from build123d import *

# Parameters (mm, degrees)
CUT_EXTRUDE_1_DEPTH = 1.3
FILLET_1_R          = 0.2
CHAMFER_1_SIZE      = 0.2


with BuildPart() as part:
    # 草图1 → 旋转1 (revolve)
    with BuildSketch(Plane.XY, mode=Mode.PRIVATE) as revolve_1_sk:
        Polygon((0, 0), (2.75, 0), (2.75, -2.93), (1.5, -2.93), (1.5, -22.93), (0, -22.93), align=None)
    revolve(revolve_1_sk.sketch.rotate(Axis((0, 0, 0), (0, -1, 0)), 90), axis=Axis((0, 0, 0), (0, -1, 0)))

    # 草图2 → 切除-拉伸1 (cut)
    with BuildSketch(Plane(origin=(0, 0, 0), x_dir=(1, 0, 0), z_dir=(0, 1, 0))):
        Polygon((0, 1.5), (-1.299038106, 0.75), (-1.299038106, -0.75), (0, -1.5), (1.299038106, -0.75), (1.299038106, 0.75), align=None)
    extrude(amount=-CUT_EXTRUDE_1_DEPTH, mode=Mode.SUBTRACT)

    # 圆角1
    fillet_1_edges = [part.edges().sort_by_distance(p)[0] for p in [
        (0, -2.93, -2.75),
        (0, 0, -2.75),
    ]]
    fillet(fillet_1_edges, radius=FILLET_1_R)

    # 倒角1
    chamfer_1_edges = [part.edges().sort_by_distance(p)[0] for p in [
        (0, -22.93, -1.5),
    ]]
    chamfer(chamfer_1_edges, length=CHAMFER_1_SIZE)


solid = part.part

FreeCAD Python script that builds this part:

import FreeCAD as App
import Part
import Sketcher
from FreeCAD import Vector
Q = App.Units.Quantity


def edges_at(feature, points):
    """Names of the edges that pass closest to the given points."""
    edges = feature.Shape.Edges
    near = lambda p: min(range(len(edges)), key=lambda i: edges[i].distToShape(Part.Vertex(*p))[0])
    return sorted({f"Edge{near(p) + 1}" for p in points})


def add_polygon(sketch, points):
    """Adds a closed chain of lines whose ends are joined by coincident constraints."""
    first, n = sketch.GeometryCount, len(points)
    for a, b in zip(points, points[1:] + points[:1]):
        sketch.addGeometry(Part.LineSegment(App.Vector(*a, 0), App.Vector(*b, 0)), False)
    for i in range(n):
        sketch.addConstraint(Sketcher.Constraint("Coincident", first + i, 2, first + (i + 1) % n, 1))

doc = App.newDocument("Part")
body = doc.addObject("PartDesign::Body", "Body")

# Sketch on XY plane
sketch1 = body.newObject("Sketcher::SketchObject", "Sketch")
sketch1.AttachmentSupport = (doc.getObject("XY_Plane"), [""])
sketch1.MapMode = "FlatFace"
add_polygon(sketch1, [(2.8, 0), (0, 0), (0, -22.9), (1.5, -22.9), (1.5, -2.9), (2.8, -2.9)])  # lines 0-5
sketch1.addConstraint(Sketcher.Constraint("Horizontal", 0))
sketch1.addConstraint(Sketcher.Constraint("Vertical", 1))
sketch1.addConstraint(Sketcher.Constraint("Horizontal", 2))
sketch1.addConstraint(Sketcher.Constraint("Vertical", 3))
sketch1.addConstraint(Sketcher.Constraint("Horizontal", 4))
sketch1.addConstraint(Sketcher.Constraint("Vertical", 5))
sketch1.addConstraint(Sketcher.Constraint("Coincident", 0, 2, -1, 1))
sketch1.addConstraint(Sketcher.Constraint("DistanceY", 3, 1, 3, 2, 20.0))
sketch1.addConstraint(Sketcher.Constraint("DistanceX", 2, 1, 2, 2, 1.5))
sketch1.addConstraint(Sketcher.Constraint("DistanceX", 0, 2, 0, 1, 2.75))
sketch1.addConstraint(Sketcher.Constraint("DistanceY", 1, 2, 1, 1, 22.93))
revolution = body.newObject("PartDesign::Revolution", "Revolution")
revolution.Profile = sketch1
revolution.ReferenceAxis = (sketch1, ["V_Axis"])
revolution.Angle = 360

# Sketch on XZ plane
sketch2 = body.newObject("Sketcher::SketchObject", "Sketch001")
sketch2.AttachmentSupport = (doc.getObject("XZ_Plane"), [""])
sketch2.MapMode = "FlatFace"
add_polygon(sketch2, [(0, -1.5), (-1.3, -0.8), (-1.3, 0.8), (0, 1.5), (1.3, 0.8), (1.3, -0.8)])  # lines 0-5
sketch2.addConstraint(Sketcher.Constraint("Vertical", 1))
sketch2.addConstraint(Sketcher.Constraint("Vertical", 4))
sketch2.addConstraint(Sketcher.Constraint("Symmetric", 0, 2, 3, 2, -1, 1))
sketch2.addConstraint(Sketcher.Constraint("Symmetric", 2, 2, 5, 2, -1, 1))
sketch2.addConstraint(Sketcher.Constraint("PointOnObject", 2, 2, -2))
sketch2.addConstraint(Sketcher.Constraint("Parallel", 2, 5))
sketch2.addConstraint(Sketcher.Constraint("Horizontal", 1, 2, 3, 2))
sketch2.addConstraint(Sketcher.Constraint("Angle", 0, Q("150 deg")))
sketch2.addConstraint(Sketcher.Constraint("DistanceY", 1, 1, 1, 2, 1.5))
sketch2.addConstraint(Sketcher.Constraint("DistanceY", 5, 2, 2, 2, 3.0))
pocket1 = body.newObject("PartDesign::Pocket", "Pocket")
pocket1.Profile = sketch2
pocket1.Length = 1.3
pocket1.Reversed = True
doc.recompute()

fillet = body.newObject("PartDesign::Fillet", "Fillet")
fillet.Base = (pocket1, edges_at(pocket1, [(0, -2.93, -2.75), (0, 0, -2.75)]))
fillet.Radius = 0.2
doc.recompute()

chamfer = body.newObject("PartDesign::Chamfer", "Chamfer")
chamfer.Base = (fillet, edges_at(fillet, [(0, -22.93, -1.5)]))
chamfer.Size = 0.2

doc.recompute()
